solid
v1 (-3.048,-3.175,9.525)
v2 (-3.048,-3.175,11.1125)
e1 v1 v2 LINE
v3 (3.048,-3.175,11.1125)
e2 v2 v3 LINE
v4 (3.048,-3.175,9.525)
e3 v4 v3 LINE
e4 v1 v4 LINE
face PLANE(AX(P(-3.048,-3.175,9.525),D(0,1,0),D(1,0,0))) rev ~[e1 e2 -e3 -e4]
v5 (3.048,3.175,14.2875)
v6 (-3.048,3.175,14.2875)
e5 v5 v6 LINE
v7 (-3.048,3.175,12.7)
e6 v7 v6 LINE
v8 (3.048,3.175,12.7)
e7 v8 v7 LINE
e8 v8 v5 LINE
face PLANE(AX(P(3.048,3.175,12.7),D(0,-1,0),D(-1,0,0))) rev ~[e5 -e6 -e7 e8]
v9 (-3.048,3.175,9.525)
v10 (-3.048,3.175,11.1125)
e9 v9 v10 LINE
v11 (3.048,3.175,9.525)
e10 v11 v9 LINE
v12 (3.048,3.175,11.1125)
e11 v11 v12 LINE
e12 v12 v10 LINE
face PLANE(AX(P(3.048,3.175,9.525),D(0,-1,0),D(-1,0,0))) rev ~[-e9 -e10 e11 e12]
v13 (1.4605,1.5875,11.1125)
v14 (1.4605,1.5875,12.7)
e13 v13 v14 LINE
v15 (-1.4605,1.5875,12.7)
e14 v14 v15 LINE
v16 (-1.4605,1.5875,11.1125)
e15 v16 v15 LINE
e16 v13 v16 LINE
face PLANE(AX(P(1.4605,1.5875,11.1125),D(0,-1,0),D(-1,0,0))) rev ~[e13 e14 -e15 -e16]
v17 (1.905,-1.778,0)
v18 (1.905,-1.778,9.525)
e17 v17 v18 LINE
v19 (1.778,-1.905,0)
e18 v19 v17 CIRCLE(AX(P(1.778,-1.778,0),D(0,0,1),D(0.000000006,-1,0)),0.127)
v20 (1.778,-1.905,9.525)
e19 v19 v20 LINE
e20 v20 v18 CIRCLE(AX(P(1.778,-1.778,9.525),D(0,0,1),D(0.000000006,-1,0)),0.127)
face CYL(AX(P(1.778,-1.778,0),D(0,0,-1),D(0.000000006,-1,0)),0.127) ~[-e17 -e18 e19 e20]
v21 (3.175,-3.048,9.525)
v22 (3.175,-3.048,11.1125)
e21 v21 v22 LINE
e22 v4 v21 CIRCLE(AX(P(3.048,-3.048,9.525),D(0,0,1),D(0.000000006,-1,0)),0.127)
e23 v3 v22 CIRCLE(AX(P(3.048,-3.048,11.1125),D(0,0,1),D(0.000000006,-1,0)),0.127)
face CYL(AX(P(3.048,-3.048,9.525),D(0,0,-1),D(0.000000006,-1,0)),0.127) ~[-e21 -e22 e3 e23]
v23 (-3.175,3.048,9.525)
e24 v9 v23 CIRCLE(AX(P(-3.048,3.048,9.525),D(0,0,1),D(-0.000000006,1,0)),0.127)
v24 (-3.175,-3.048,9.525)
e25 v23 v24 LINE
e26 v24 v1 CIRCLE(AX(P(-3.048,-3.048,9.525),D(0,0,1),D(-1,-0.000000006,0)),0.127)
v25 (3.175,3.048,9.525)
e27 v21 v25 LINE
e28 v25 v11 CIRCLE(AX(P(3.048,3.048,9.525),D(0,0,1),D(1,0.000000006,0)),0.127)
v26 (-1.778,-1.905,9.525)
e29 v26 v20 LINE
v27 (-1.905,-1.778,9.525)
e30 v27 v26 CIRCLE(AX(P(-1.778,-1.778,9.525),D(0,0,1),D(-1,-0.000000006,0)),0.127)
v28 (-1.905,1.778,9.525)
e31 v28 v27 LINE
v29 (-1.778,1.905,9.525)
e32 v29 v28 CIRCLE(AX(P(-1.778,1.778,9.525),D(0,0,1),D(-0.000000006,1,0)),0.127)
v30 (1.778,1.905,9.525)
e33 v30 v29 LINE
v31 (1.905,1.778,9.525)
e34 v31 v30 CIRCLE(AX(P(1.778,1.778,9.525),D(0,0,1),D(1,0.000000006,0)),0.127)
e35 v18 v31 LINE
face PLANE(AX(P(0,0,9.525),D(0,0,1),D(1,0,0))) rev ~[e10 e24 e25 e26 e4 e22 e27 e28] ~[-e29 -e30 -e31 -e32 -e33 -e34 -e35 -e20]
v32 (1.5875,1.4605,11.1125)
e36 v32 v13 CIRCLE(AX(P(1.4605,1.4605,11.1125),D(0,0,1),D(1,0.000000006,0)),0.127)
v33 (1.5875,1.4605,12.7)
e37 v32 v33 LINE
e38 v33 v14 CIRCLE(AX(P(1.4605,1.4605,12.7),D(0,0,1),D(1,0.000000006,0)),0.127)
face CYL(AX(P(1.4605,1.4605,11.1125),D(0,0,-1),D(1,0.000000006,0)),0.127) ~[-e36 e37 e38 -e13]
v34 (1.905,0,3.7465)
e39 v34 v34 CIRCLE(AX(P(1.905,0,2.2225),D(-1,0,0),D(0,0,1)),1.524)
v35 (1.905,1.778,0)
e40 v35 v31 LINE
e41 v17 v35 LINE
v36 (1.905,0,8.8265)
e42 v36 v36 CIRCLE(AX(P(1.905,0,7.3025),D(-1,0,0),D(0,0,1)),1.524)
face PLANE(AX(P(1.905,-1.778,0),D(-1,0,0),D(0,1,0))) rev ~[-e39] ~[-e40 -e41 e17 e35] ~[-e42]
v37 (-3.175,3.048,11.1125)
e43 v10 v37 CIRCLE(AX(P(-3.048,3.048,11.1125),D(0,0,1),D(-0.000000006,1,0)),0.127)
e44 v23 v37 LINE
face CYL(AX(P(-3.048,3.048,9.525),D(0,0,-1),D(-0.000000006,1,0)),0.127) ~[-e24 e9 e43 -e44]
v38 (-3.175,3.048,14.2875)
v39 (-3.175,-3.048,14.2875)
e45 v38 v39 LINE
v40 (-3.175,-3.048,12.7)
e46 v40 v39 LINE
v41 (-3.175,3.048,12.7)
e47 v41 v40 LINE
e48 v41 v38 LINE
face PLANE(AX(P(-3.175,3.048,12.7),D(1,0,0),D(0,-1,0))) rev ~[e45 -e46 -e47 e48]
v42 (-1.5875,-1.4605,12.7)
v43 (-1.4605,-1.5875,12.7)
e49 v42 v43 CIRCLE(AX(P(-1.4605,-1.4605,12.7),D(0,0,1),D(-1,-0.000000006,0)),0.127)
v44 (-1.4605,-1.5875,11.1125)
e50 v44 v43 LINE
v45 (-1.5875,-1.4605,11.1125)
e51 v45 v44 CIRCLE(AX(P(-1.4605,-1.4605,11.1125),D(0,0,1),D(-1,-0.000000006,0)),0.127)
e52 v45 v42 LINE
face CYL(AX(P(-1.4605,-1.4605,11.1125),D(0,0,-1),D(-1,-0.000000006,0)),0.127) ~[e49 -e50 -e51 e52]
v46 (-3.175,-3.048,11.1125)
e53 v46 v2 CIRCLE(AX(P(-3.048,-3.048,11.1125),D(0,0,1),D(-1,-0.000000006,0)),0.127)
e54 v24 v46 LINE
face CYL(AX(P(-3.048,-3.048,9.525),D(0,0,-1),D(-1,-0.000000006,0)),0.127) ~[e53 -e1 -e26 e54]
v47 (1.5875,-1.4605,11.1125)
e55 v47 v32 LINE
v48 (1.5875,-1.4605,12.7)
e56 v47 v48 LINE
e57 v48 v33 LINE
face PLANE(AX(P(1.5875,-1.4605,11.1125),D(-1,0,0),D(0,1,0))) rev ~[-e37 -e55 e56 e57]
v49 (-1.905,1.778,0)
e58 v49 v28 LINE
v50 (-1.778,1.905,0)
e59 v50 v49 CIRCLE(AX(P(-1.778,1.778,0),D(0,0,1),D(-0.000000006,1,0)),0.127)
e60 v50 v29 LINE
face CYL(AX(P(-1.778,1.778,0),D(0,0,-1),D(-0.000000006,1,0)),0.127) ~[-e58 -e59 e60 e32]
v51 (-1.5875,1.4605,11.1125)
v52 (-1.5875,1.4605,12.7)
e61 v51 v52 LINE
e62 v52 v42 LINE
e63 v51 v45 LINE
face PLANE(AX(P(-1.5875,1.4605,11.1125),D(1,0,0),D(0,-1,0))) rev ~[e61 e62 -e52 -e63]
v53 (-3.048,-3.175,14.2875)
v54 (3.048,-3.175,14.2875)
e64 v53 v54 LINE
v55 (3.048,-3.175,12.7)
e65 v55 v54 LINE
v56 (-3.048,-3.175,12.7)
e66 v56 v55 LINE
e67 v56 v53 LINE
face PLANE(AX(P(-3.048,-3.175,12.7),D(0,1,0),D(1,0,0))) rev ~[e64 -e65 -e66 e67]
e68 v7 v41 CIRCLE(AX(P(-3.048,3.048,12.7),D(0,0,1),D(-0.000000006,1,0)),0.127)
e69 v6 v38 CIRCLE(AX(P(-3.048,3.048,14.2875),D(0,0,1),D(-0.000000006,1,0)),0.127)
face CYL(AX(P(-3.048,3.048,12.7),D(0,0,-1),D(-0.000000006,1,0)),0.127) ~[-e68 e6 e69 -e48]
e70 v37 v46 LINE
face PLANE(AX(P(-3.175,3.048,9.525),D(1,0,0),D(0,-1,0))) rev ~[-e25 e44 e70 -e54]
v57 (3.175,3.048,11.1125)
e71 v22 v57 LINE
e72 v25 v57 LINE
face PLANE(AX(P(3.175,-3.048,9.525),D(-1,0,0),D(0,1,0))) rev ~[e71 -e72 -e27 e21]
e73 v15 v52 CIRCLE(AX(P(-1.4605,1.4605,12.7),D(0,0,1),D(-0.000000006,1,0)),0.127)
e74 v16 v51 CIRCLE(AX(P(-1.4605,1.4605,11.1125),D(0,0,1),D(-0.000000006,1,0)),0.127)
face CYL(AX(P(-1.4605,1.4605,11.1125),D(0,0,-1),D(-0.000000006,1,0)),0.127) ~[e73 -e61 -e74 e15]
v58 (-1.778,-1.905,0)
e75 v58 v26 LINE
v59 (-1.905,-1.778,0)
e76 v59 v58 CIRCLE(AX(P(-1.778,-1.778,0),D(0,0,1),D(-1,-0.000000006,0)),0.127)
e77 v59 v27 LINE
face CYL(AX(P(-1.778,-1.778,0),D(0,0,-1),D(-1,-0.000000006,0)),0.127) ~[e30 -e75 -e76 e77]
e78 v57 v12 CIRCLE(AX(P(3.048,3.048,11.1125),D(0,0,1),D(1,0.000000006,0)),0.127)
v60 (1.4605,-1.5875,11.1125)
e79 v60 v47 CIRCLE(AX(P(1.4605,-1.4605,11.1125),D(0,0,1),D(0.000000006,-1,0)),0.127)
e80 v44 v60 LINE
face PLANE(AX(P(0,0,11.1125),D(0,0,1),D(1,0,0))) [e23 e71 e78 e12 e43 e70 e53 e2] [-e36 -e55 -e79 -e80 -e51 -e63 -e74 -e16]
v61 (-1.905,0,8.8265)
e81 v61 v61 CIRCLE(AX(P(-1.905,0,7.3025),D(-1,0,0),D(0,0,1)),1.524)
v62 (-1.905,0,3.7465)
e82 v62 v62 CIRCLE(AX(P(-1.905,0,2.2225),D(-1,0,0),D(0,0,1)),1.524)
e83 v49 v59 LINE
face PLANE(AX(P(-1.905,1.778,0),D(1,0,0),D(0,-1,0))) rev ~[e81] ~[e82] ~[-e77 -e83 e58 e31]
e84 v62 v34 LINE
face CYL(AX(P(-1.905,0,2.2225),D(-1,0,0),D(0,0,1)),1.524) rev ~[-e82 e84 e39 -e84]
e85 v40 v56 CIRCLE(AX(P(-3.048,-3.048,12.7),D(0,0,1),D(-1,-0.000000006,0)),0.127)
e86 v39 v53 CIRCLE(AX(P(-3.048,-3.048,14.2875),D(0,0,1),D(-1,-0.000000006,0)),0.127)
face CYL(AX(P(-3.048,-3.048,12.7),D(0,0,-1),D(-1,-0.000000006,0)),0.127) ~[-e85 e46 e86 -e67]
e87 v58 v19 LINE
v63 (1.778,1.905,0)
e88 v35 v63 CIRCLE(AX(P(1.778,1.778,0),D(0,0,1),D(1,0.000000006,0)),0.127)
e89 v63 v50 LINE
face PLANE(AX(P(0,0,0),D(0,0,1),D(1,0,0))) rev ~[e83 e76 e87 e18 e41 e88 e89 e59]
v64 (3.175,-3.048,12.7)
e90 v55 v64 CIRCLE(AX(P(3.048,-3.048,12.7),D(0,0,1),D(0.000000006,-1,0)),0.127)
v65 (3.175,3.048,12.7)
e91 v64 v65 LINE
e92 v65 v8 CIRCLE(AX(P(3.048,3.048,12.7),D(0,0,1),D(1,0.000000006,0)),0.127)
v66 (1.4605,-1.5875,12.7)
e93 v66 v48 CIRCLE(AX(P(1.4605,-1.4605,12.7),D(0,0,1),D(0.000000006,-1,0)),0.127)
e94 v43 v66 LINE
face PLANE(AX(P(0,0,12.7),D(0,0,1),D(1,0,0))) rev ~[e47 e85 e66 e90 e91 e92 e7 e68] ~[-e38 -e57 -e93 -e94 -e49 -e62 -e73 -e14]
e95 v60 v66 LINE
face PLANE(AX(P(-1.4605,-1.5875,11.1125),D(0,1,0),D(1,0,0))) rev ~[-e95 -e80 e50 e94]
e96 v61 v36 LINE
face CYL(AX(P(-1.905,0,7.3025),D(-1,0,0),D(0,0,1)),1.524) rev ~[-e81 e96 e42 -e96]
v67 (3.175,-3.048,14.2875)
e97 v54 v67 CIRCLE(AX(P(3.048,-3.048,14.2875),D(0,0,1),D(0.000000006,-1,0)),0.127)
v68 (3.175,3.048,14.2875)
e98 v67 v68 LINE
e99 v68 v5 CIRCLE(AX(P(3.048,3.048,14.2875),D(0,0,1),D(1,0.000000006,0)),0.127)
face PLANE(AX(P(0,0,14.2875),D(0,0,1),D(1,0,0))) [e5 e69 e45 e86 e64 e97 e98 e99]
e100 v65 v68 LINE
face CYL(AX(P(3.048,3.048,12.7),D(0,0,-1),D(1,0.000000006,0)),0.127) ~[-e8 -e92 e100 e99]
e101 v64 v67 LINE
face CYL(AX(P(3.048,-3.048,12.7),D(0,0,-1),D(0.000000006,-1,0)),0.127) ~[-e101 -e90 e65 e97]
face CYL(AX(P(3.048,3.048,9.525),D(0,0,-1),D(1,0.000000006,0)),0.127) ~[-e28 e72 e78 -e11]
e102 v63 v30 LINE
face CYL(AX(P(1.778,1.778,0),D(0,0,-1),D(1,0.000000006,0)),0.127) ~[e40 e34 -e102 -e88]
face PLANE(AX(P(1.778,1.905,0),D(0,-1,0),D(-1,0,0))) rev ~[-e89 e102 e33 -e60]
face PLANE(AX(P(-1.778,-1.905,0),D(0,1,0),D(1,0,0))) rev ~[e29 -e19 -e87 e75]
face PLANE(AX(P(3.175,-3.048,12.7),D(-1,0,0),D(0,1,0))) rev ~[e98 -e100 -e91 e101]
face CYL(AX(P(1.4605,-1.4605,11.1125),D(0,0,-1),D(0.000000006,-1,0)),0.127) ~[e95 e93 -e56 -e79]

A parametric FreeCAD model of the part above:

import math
import FreeCAD as App
import Part
import Sketcher
from FreeCAD import Vector
Q = App.Units.Quantity

doc = App.newDocument("Part")
params = doc.addObject("Spreadsheet::Sheet", "Params")
for row, (alias, value) in enumerate([
    ("sketch1_radius", "0.005 in"),
    ("sketch1_width", "0.14 in"),
    ("pad1_length", "0.375 in"),
    ("sketch2_radius", "0.005 in"),
    ("sketch2_width", "0.24 in"),
    ("pad2_length", "0.0625 in"),
    ("sketch3_radius", "0.005 in"),
    ("sketch3_width", "0.115 in"),
    ("pad3_length", "0.0625 in"),
    ("sketch4_radius", "0.005 in"),
    ("sketch4_width", "0.24 in"),
    ("pad4_length", "0.0625 in"),
    ("sketch5_diameter", "0.12 in"),
], start=1):
    params.set(f"A{row}", alias)
    params.set(f"B{row}", "=" + value)
    params.setAlias(f"B{row}", alias)

body = doc.addObject("PartDesign::Body", "Body")

sketch1 = body.newObject("Sketcher::SketchObject", "Sketch")
sketch1.AttachmentSupport = (doc.getObject("XY_Plane"), [""])
sketch1.MapMode = "FlatFace"
sketch1.addGeometry(Part.LineSegment(Vector(-1.778, -1.905, 0), Vector(1.778, -1.905, 0)), False)
sketch1.addGeometry(Part.ArcOfCircle(Part.Circle(Vector(1.778, -1.778, 0), Vector(0, 0, 1), 0.127), math.radians(-90), math.radians(0)), False)
sketch1.addGeometry(Part.LineSegment(Vector(1.905, -1.778, 0), Vector(1.905, 1.778, 0)), False)
sketch1.addGeometry(Part.ArcOfCircle(Part.Circle(Vector(1.778, 1.778, 0), Vector(0, 0, 1), 0.127), math.radians(0), math.radians(90)), False)
sketch1.addGeometry(Part.LineSegment(Vector(1.778, 1.905, 0), Vector(-1.778, 1.905, 0)), False)
sketch1.addGeometry(Part.ArcOfCircle(Part.Circle(Vector(-1.778, 1.778, 0), Vector(0, 0, 1), 0.127), math.radians(90), math.radians(180)), False)
sketch1.addGeometry(Part.LineSegment(Vector(-1.905, 1.778, 0), Vector(-1.905, -1.778, 0)), False)
sketch1.addGeometry(Part.ArcOfCircle(Part.Circle(Vector(-1.778, -1.778, 0), Vector(0, 0, 1), 0.127), math.radians(-180), math.radians(-90)), False)
sketch1.addConstraint(Sketcher.Constraint("Tangent", 0, 2, 1, 1))
sketch1.addConstraint(Sketcher.Constraint("Tangent", 1, 2, 2, 1))
sketch1.addConstraint(Sketcher.Constraint("Tangent", 2, 2, 3, 1))
sketch1.addConstraint(Sketcher.Constraint("Tangent", 3, 2, 4, 1))
sketch1.addConstraint(Sketcher.Constraint("Tangent", 4, 2, 5, 1))
sketch1.addConstraint(Sketcher.Constraint("Tangent", 5, 2, 6, 1))
sketch1.addConstraint(Sketcher.Constraint("Tangent", 6, 2, 7, 1))
sketch1.addConstraint(Sketcher.Constraint("Tangent", 7, 2, 0, 1))
sketch1.addConstraint(Sketcher.Constraint("Horizontal", 0))
sketch1.addConstraint(Sketcher.Constraint("Vertical", 2))
sketch1.addConstraint(Sketcher.Constraint("Horizontal", 4))
sketch1.addConstraint(Sketcher.Constraint("Vertical", 6))
sketch1.addConstraint(Sketcher.Constraint("Equal", 1, 3))
sketch1.addConstraint(Sketcher.Constraint("Equal", 3, 5))
sketch1.addConstraint(Sketcher.Constraint("Equal", 5, 7))
sketch1.addConstraint(Sketcher.Constraint("Symmetric", 1, 3, 5, 3, -1, 1))
sketch1.addConstraint(Sketcher.Constraint("Equal", 4, 2))
sketch1.addConstraint(Sketcher.Constraint("Radius", 1, Q("0.005 in")))
sketch1.addConstraint(Sketcher.Constraint("DistanceX", 0, 1, 0, 2, Q("0.14 in")))
sketch1.setExpression("Constraints[17]", "Params.sketch1_radius")
sketch1.setExpression("Constraints[18]", "Params.sketch1_width")
pad1 = body.newObject("PartDesign::Pad", "Pad")
pad1.Profile = sketch1
pad1.setExpression("Length", "Params.pad1_length")

sketch2 = body.newObject("Sketcher::SketchObject", "Sketch001")
sketch2.AttachmentSupport = (doc.getObject("XY_Plane"), [""])
sketch2.MapMode = "FlatFace"
sketch2.AttachmentOffset = App.Placement(Vector(0, 0, 0.375 * 25.4), App.Rotation())
sketch2.addGeometry(Part.LineSegment(Vector(-3.048, -3.175, 0), Vector(3.048, -3.175, 0)), False)
sketch2.addGeometry(Part.ArcOfCircle(Part.Circle(Vector(3.048, -3.048, 0), Vector(0, 0, 1), 0.127), math.radians(-90), math.radians(0)), False)
sketch2.addGeometry(Part.LineSegment(Vector(3.175, -3.048, 0), Vector(3.175, 3.048, 0)), False)
sketch2.addGeometry(Part.ArcOfCircle(Part.Circle(Vector(3.048, 3.048, 0), Vector(0, 0, 1), 0.127), math.radians(0), math.radians(90)), False)
sketch2.addGeometry(Part.LineSegment(Vector(3.048, 3.175, 0), Vector(-3.048, 3.175, 0)), False)
sketch2.addGeometry(Part.ArcOfCircle(Part.Circle(Vector(-3.048, 3.048, 0), Vector(0, 0, 1), 0.127), math.radians(90), math.radians(180)), False)
sketch2.addGeometry(Part.LineSegment(Vector(-3.175, 3.048, 0), Vector(-3.175, -3.048, 0)), False)
sketch2.addGeometry(Part.ArcOfCircle(Part.Circle(Vector(-3.048, -3.048, 0), Vector(0, 0, 1), 0.127), math.radians(-180), math.radians(-90)), False)
sketch2.addConstraint(Sketcher.Constraint("Tangent", 0, 2, 1, 1))
sketch2.addConstraint(Sketcher.Constraint("Tangent", 1, 2, 2, 1))
sketch2.addConstraint(Sketcher.Constraint("Tangent", 2, 2, 3, 1))
sketch2.addConstraint(Sketcher.Constraint("Tangent", 3, 2, 4, 1))
sketch2.addConstraint(Sketcher.Constraint("Tangent", 4, 2, 5, 1))
sketch2.addConstraint(Sketcher.Constraint("Tangent", 5, 2, 6, 1))
sketch2.addConstraint(Sketcher.Constraint("Tangent", 6, 2, 7, 1))
sketch2.addConstraint(Sketcher.Constraint("Tangent", 7, 2, 0, 1))
sketch2.addConstraint(Sketcher.Constraint("Horizontal", 0))
sketch2.addConstraint(Sketcher.Constraint("Vertical", 2))
sketch2.addConstraint(Sketcher.Constraint("Horizontal", 4))
sketch2.addConstraint(Sketcher.Constraint("Vertical", 6))
sketch2.addConstraint(Sketcher.Constraint("Equal", 1, 3))
sketch2.addConstraint(Sketcher.Constraint("Equal", 3, 5))
sketch2.addConstraint(Sketcher.Constraint("Equal", 5, 7))
sketch2.addConstraint(Sketcher.Constraint("Symmetric", 1, 3, 5, 3, -1, 1))
sketch2.addConstraint(Sketcher.Constraint("Equal", 4, 2))
sketch2.addConstraint(Sketcher.Constraint("Radius", 1, Q("0.005 in")))
sketch2.addConstraint(Sketcher.Constraint("DistanceX", 0, 1, 0, 2, Q("0.24 in")))
sketch2.setExpression("Constraints[17]", "Params.sketch2_radius")
sketch2.setExpression("Constraints[18]", "Params.sketch2_width")
pad2 = body.newObject("PartDesign::Pad", "Pad001")
pad2.Profile = sketch2
pad2.setExpression("Length", "Params.pad2_length")

sketch3 = body.newObject("Sketcher::SketchObject", "Sketch002")
sketch3.AttachmentSupport = (doc.getObject("XY_Plane"), [""])
sketch3.MapMode = "FlatFace"
sketch3.AttachmentOffset = App.Placement(Vector(0, 0, 0.4375 * 25.4), App.Rotation())
sketch3.addGeometry(Part.LineSegment(Vector(-1.4605, -1.5875, 0), Vector(1.4605, -1.5875, 0)), False)
sketch3.addGeometry(Part.ArcOfCircle(Part.Circle(Vector(1.4605, -1.4605, 0), Vector(0, 0, 1), 0.127), math.radians(-90), math.radians(0)), False)
sketch3.addGeometry(Part.LineSegment(Vector(1.5875, -1.4605, 0), Vector(1.5875, 1.4605, 0)), False)
sketch3.addGeometry(Part.ArcOfCircle(Part.Circle(Vector(1.4605, 1.4605, 0), Vector(0, 0, 1), 0.127), math.radians(0), math.radians(90)), False)
sketch3.addGeometry(Part.LineSegment(Vector(1.4605, 1.5875, 0), Vector(-1.4605, 1.5875, 0)), False)
sketch3.addGeometry(Part.ArcOfCircle(Part.Circle(Vector(-1.4605, 1.4605, 0), Vector(0, 0, 1), 0.127), math.radians(90), math.radians(180)), False)
sketch3.addGeometry(Part.LineSegment(Vector(-1.5875, 1.4605, 0), Vector(-1.5875, -1.4605, 0)), False)
sketch3.addGeometry(Part.ArcOfCircle(Part.Circle(Vector(-1.4605, -1.4605, 0), Vector(0, 0, 1), 0.127), math.radians(-180), math.radians(-90)), False)
sketch3.addConstraint(Sketcher.Constraint("Tangent", 0, 2, 1, 1))
sketch3.addConstraint(Sketcher.Constraint("Tangent", 1, 2, 2, 1))
sketch3.addConstraint(Sketcher.Constraint("Tangent", 2, 2, 3, 1))
sketch3.addConstraint(Sketcher.Constraint("Tangent", 3, 2, 4, 1))
sketch3.addConstraint(Sketcher.Constraint("Tangent", 4, 2, 5, 1))
sketch3.addConstraint(Sketcher.Constraint("Tangent", 5, 2, 6, 1))
sketch3.addConstraint(Sketcher.Constraint("Tangent", 6, 2, 7, 1))
sketch3.addConstraint(Sketcher.Constraint("Tangent", 7, 2, 0, 1))
sketch3.addConstraint(Sketcher.Constraint("Horizontal", 0))
sketch3.addConstraint(Sketcher.Constraint("Vertical", 2))
sketch3.addConstraint(Sketcher.Constraint("Horizontal", 4))
sketch3.addConstraint(Sketcher.Constraint("Vertical", 6))
sketch3.addConstraint(Sketcher.Constraint("Equal", 1, 3))
sketch3.addConstraint(Sketcher.Constraint("Equal", 3, 5))
sketch3.addConstraint(Sketcher.Constraint("Equal", 5, 7))
sketch3.addConstraint(Sketcher.Constraint("Symmetric", 1, 3, 5, 3, -1, 1))
sketch3.addConstraint(Sketcher.Constraint("Equal", 4, 2))
sketch3.addConstraint(Sketcher.Constraint("Radius", 1, Q("0.005 in")))
sketch3.addConstraint(Sketcher.Constraint("DistanceX", 0, 1, 0, 2, Q("0.115 in")))
sketch3.setExpression("Constraints[17]", "Params.sketch3_radius")
sketch3.setExpression("Constraints[18]", "Params.sketch3_width")
pad3 = body.newObject("PartDesign::Pad", "Pad002")
pad3.Profile = sketch3
pad3.setExpression("Length", "Params.pad3_length")

sketch4 = body.newObject("Sketcher::SketchObject", "Sketch003")
sketch4.AttachmentSupport = (doc.getObject("XY_Plane"), [""])
sketch4.MapMode = "FlatFace"
sketch4.AttachmentOffset = App.Placement(Vector(0, 0, 0.5 * 25.4), App.Rotation())
sketch4.addGeometry(Part.LineSegment(Vector(-3.048, -3.175, 0), Vector(3.048, -3.175, 0)), False)
sketch4.addGeometry(Part.ArcOfCircle(Part.Circle(Vector(3.048, -3.048, 0), Vector(0, 0, 1), 0.127), math.radians(-90), math.radians(0)), False)
sketch4.addGeometry(Part.LineSegment(Vector(3.175, -3.048, 0), Vector(3.175, 3.048, 0)), False)
sketch4.addGeometry(Part.ArcOfCircle(Part.Circle(Vector(3.048, 3.048, 0), Vector(0, 0, 1), 0.127), math.radians(0), math.radians(90)), False)
sketch4.addGeometry(Part.LineSegment(Vector(3.048, 3.175, 0), Vector(-3.048, 3.175, 0)), False)
sketch4.addGeometry(Part.ArcOfCircle(Part.Circle(Vector(-3.048, 3.048, 0), Vector(0, 0, 1), 0.127), math.radians(90), math.radians(180)), False)
sketch4.addGeometry(Part.LineSegment(Vector(-3.175, 3.048, 0), Vector(-3.175, -3.048, 0)), False)
sketch4.addGeometry(Part.ArcOfCircle(Part.Circle(Vector(-3.048, -3.048, 0), Vector(0, 0, 1), 0.127), math.radians(-180), math.radians(-90)), False)
sketch4.addConstraint(Sketcher.Constraint("Tangent", 0, 2, 1, 1))
sketch4.addConstraint(Sketcher.Constraint("Tangent", 1, 2, 2, 1))
sketch4.addConstraint(Sketcher.Constraint("Tangent", 2, 2, 3, 1))
sketch4.addConstraint(Sketcher.Constraint("Tangent", 3, 2, 4, 1))
sketch4.addConstraint(Sketcher.Constraint("Tangent", 4, 2, 5, 1))
sketch4.addConstraint(Sketcher.Constraint("Tangent", 5, 2, 6, 1))
sketch4.addConstraint(Sketcher.Constraint("Tangent", 6, 2, 7, 1))
sketch4.addConstraint(Sketcher.Constraint("Tangent", 7, 2, 0, 1))
sketch4.addConstraint(Sketcher.Constraint("Horizontal", 0))
sketch4.addConstraint(Sketcher.Constraint("Vertical", 2))
sketch4.addConstraint(Sketcher.Constraint("Horizontal", 4))
sketch4.addConstraint(Sketcher.Constraint("Vertical", 6))
sketch4.addConstraint(Sketcher.Constraint("Equal", 1, 3))
sketch4.addConstraint(Sketcher.Constraint("Equal", 3, 5))
sketch4.addConstraint(Sketcher.Constraint("Equal", 5, 7))
sketch4.addConstraint(Sketcher.Constraint("Symmetric", 1, 3, 5, 3, -1, 1))
sketch4.addConstraint(Sketcher.Constraint("Equal", 4, 2))
sketch4.addConstraint(Sketcher.Constraint("Radius", 1, Q("0.005 in")))
sketch4.addConstraint(Sketcher.Constraint("DistanceX", 0, 1, 0, 2, Q("0.24 in")))
sketch4.setExpression("Constraints[17]", "Params.sketch4_radius")
sketch4.setExpression("Constraints[18]", "Params.sketch4_width")
pad4 = body.newObject("PartDesign::Pad", "Pad003")
pad4.Profile = sketch4
pad4.setExpression("Length", "Params.pad4_length")

sketch5 = body.newObject("Sketcher::SketchObject", "Sketch004")
sketch5.AttachmentSupport = (doc.getObject("YZ_Plane"), [""])
sketch5.MapMode = "FlatFace"
sketch5.AttachmentOffset = App.Placement(Vector(0, 0, -0.075 * 25.4), App.Rotation())
sketch5.addGeometry(Part.Circle(Vector(0, 2.2225, 0), Vector(0, 0, 1), 1.524), False)
sketch5.addGeometry(Part.Circle(Vector(0, 7.3025, 0), Vector(0, 0, 1), 1.524), False)
sketch5.addConstraint(Sketcher.Constraint("Equal", 0, 1))
sketch5.addConstraint(Sketcher.Constraint("PointOnObject", 0, 3, -2))
sketch5.addConstraint(Sketcher.Constraint("PointOnObject", 1, 3, -2))
sketch5.addConstraint(Sketcher.Constraint("Diameter", 0, Q("0.12 in")))
sketch5.addConstraint(Sketcher.Constraint("DistanceY", 0, 3, 1, 3, Q("0.2 in")))
sketch5.addConstraint(Sketcher.Constraint("DistanceY", -1, 1, 0, 3, Q("0.0875 in")))
sketch5.setExpression("Constraints[3]", "Params.sketch5_diameter")
pocket1 = body.newObject("PartDesign::Pocket", "Pocket")
pocket1.Profile = sketch5
pocket1.Type = "ThroughAll"
pocket1.Reversed = True

doc.recompute()
